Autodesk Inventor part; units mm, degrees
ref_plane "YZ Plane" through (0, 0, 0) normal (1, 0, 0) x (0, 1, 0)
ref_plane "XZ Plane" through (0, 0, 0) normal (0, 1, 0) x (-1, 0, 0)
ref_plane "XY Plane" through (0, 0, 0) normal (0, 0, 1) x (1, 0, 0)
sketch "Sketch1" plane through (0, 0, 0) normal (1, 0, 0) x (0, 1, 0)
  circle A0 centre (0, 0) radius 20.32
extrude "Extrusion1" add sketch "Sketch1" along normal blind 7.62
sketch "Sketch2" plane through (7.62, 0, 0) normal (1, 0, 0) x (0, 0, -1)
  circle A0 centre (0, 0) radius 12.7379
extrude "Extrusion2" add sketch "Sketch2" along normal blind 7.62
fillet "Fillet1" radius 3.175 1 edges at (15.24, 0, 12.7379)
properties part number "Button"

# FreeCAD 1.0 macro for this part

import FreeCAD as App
import Part
import Sketcher
from FreeCAD import Vector
Q = App.Units.Quantity


def edges_at(feature, points):
    """Names of the edges that pass closest to the given points."""
    edges = feature.Shape.Edges
    near = lambda p: min(range(len(edges)), key=lambda i: edges[i].distToShape(Part.Vertex(*p))[0])
    return sorted({f"Edge{near(p) + 1}" for p in points})

doc = App.newDocument("Part")
body = doc.addObject("PartDesign::Body", "Body")

# Sketch on YZ plane
sketch1 = body.newObject("Sketcher::SketchObject", "Sketch")
sketch1.AttachmentSupport = (doc.getObject("YZ_Plane"), [""])
sketch1.MapMode = "FlatFace"
sketch1.addGeometry(Part.Circle(Vector(0, 0, 0), Vector(0, 0, 1), 20.32), False)
sketch1.addConstraint(Sketcher.Constraint("Coincident", 0, 3, -1, 1))
sketch1.addConstraint(Sketcher.Constraint("Diameter", 0, Q("1.6 in")))
pad1 = body.newObject("PartDesign::Pad", "Pad")
pad1.Profile = sketch1
pad1.Length = Q("0.3 in")

# Sketch on YZ plane
sketch2 = body.newObject("Sketcher::SketchObject", "Sketch001")
sketch2.AttachmentSupport = (doc.getObject("YZ_Plane"), [""])
sketch2.MapMode = "FlatFace"
sketch2.AttachmentOffset = App.Placement(Vector(0, 0, 0.3 * 25.4), App.Rotation())
sketch2.addGeometry(Part.Circle(Vector(0, 0, 0), Vector(0, 0, 1), 12.7379), False)
sketch2.addConstraint(Sketcher.Constraint("Coincident", 0, 3, -1, 1))
sketch2.addConstraint(Sketcher.Constraint("Diameter", 0, Q("25.4758 mm")))
pad2 = body.newObject("PartDesign::Pad", "Pad001")
pad2.Profile = sketch2
pad2.Length = Q("0.3 in")
doc.recompute()

fillet = body.newObject("PartDesign::Fillet", "Fillet")
fillet.Base = (pad2, edges_at(pad2, [(15.24, 0, 12.738)]))
fillet.Radius = Q("0.125 in")

doc.recompute()
